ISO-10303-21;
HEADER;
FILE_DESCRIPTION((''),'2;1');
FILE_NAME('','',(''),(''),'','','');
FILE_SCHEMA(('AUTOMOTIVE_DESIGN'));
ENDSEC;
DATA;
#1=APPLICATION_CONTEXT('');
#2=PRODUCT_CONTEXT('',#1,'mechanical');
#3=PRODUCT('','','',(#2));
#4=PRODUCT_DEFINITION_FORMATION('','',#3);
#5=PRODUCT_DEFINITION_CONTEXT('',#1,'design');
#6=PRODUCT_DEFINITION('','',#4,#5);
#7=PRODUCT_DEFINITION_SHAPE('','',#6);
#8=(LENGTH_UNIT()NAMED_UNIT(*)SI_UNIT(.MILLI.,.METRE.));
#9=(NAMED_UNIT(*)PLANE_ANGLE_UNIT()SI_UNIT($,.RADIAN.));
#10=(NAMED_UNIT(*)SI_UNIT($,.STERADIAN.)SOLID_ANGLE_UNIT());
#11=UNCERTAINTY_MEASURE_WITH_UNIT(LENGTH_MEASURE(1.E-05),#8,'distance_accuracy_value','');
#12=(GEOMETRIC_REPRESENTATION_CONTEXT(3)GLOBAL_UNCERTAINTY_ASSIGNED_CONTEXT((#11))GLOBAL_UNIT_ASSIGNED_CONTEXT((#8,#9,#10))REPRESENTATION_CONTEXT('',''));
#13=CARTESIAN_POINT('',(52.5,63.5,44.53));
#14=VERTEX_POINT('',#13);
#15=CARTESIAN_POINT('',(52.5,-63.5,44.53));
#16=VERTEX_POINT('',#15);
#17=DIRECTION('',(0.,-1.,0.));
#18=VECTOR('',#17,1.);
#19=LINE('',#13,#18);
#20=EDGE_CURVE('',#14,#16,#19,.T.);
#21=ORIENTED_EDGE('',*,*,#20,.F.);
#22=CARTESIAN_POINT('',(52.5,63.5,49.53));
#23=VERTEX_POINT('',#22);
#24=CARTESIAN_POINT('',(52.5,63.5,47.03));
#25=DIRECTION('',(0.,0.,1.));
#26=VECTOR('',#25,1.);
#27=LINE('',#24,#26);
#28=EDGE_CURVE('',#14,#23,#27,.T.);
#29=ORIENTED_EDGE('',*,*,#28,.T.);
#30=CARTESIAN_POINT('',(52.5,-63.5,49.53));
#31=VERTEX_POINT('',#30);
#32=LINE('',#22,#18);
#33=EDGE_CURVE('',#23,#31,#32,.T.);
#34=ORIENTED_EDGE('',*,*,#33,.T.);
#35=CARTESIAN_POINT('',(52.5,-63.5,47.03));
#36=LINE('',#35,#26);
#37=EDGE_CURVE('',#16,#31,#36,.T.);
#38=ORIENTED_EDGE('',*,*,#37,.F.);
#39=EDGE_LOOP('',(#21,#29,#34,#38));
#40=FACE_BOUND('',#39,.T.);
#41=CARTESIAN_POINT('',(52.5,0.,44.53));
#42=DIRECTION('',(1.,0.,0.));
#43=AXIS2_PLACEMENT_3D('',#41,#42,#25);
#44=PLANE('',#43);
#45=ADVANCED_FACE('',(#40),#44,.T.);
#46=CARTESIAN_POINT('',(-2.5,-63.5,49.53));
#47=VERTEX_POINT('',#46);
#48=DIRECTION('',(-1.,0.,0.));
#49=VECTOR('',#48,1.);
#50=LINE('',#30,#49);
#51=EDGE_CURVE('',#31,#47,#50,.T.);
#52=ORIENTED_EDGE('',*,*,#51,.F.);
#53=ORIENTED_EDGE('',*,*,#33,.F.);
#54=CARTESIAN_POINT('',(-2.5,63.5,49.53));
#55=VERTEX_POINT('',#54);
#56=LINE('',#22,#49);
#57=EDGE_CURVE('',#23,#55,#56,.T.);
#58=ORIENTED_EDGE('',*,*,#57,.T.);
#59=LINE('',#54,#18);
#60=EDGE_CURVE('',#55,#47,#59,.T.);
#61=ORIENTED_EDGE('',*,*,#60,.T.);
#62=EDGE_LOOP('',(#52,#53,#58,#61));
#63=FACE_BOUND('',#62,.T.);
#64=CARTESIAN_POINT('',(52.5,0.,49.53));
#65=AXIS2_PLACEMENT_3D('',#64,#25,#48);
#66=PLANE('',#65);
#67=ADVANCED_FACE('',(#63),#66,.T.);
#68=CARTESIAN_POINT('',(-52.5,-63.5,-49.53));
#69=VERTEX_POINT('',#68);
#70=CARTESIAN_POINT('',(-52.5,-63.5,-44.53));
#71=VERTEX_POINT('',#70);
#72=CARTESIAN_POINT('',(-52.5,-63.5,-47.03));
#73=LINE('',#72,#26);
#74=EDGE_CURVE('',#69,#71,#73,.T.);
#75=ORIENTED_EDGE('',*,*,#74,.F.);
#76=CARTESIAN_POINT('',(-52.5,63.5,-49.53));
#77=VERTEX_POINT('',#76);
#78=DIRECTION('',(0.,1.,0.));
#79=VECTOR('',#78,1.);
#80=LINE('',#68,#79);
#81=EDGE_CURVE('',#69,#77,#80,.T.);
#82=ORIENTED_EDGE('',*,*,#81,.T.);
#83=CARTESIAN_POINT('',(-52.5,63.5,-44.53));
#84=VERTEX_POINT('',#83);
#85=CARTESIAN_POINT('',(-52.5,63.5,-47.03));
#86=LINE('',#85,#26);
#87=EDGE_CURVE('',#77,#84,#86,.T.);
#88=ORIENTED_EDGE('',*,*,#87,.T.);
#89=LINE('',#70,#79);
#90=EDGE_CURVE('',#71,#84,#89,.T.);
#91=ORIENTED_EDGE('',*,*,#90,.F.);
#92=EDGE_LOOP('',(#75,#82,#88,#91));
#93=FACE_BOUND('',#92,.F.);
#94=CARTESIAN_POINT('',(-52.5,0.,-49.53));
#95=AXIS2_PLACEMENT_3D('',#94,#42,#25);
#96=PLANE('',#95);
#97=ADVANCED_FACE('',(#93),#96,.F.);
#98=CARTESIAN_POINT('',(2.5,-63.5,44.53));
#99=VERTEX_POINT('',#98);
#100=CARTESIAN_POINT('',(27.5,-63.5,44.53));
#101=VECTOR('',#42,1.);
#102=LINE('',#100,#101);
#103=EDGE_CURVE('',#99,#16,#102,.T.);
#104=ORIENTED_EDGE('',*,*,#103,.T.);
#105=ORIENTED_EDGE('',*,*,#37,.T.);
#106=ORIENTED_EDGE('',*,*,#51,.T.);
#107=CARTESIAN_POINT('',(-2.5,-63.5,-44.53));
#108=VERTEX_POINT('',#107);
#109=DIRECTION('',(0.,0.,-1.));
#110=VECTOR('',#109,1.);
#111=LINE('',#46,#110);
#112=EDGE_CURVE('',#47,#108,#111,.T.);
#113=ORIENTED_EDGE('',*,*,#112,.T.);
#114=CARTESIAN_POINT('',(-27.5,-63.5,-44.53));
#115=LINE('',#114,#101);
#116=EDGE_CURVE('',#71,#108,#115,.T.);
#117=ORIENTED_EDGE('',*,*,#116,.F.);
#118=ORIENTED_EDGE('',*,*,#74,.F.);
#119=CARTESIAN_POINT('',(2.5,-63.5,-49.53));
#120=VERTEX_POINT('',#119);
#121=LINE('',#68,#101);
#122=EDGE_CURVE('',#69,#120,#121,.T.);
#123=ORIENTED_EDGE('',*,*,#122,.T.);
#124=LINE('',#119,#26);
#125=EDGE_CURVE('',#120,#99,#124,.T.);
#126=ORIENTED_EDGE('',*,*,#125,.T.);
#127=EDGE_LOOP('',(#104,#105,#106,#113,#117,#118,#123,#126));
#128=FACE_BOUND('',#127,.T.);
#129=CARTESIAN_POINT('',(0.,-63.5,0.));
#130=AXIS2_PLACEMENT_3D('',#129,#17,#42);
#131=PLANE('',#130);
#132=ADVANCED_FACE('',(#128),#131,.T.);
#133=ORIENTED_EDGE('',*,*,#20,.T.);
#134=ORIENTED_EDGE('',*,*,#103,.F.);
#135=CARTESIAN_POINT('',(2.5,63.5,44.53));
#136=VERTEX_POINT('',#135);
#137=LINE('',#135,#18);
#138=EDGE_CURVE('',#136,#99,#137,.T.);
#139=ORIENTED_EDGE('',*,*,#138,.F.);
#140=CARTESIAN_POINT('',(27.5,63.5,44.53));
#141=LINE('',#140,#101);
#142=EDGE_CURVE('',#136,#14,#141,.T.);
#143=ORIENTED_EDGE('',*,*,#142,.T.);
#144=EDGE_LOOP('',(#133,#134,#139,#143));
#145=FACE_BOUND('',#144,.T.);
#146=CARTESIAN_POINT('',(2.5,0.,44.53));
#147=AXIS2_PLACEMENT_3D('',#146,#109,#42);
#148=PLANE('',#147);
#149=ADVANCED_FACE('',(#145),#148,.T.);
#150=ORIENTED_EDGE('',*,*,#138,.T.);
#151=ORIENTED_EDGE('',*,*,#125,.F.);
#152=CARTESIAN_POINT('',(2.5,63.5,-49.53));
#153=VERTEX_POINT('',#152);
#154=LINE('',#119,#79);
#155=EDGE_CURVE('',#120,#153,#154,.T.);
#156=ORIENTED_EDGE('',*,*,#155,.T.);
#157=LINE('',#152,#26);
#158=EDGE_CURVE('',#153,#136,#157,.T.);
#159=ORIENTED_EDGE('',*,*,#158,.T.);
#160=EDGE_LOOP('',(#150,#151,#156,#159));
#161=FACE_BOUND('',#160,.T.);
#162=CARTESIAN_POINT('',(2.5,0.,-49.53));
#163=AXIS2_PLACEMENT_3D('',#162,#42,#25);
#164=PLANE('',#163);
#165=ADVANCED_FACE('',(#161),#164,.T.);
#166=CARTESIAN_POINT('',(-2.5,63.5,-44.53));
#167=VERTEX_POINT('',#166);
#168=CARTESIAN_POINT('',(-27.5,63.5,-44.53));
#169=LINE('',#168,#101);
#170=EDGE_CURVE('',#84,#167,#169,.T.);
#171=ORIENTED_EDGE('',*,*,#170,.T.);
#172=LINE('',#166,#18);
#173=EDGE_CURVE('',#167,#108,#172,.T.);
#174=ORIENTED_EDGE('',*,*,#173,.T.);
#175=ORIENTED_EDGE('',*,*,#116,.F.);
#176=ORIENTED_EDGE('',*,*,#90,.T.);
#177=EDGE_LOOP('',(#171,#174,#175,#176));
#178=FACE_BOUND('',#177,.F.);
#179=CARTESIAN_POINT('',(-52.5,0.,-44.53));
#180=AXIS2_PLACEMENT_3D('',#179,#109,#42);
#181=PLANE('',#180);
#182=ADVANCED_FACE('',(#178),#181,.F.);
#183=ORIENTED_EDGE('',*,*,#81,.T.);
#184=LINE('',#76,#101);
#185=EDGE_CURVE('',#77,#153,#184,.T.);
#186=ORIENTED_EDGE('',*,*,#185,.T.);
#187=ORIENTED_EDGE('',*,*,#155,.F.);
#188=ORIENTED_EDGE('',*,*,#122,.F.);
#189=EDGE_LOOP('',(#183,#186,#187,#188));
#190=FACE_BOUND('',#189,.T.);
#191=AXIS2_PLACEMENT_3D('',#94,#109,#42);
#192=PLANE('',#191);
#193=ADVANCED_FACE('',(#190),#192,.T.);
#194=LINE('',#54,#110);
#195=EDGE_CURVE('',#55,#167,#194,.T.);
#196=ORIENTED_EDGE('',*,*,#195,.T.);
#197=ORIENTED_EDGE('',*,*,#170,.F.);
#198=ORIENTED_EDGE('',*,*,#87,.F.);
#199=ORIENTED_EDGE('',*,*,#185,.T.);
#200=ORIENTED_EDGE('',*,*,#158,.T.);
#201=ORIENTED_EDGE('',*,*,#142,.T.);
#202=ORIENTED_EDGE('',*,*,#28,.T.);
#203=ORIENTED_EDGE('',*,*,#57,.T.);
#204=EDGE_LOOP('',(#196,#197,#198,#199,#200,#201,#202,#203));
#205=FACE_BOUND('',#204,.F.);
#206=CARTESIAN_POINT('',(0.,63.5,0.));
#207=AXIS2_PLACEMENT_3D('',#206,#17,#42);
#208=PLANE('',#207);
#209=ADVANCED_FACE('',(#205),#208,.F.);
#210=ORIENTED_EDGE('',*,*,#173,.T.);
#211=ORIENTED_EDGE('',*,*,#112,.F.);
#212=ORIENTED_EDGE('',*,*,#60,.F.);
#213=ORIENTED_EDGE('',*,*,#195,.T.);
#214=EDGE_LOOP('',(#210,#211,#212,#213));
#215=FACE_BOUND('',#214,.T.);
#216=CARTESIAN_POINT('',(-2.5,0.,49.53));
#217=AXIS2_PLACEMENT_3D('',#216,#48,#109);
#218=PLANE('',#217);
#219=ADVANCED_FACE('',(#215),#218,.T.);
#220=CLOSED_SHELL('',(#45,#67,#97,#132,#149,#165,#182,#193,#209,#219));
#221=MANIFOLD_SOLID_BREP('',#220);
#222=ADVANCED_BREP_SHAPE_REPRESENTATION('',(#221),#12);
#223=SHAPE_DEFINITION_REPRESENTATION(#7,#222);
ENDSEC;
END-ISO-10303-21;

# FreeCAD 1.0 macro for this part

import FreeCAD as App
import Part
import Sketcher
Q = App.Units.Quantity

doc = App.newDocument("Part")
body = doc.addObject("PartDesign::Body", "Body")

# Sketch on XZ plane
sketch1 = body.newObject("Sketcher::SketchObject", "Sketch")
sketch1.AttachmentSupport = (doc.getObject("XZ_Plane"), [""])
sketch1.MapMode = "FlatFace"
sketch1.addGeometry([
    Part.LineSegment(App.Vector(2.5, -49.53, 0), App.Vector(2.5, 44.53, 0)),  # 0
    Part.LineSegment(App.Vector(2.5, 44.53, 0), App.Vector(52.5, 44.53, 0)),  # 1
    Part.LineSegment(App.Vector(52.5, 44.53, 0), App.Vector(52.5, 49.53, 0)),  # 2
    Part.LineSegment(App.Vector(52.5, 49.53, 0), App.Vector(-2.5, 49.53, 0)),  # 3
    Part.LineSegment(App.Vector(-2.5, 49.53, 0), App.Vector(-2.5, -44.53, 0)),  # 4
    Part.LineSegment(App.Vector(-2.5, -44.53, 0), App.Vector(-52.5, -44.53, 0)),  # 5
    Part.LineSegment(App.Vector(-52.5, -44.53, 0), App.Vector(-52.5, -49.53, 0)),  # 6
    Part.LineSegment(App.Vector(-52.5, -49.53, 0), App.Vector(2.5, -49.53, 0)),  # 7
], False)
sketch1.addConstraint([
    Sketcher.Constraint("Coincident", 0, 2, 1, 1),
    Sketcher.Constraint("Coincident", 1, 2, 2, 1),
    Sketcher.Constraint("Coincident", 2, 2, 3, 1),
    Sketcher.Constraint("Coincident", 3, 2, 4, 1),
    Sketcher.Constraint("Coincident", 4, 2, 5, 1),
    Sketcher.Constraint("Coincident", 5, 2, 6, 1),
    Sketcher.Constraint("Coincident", 6, 2, 7, 1),
    Sketcher.Constraint("Coincident", 7, 2, 0, 1),
    Sketcher.Constraint("Vertical", 0),
    Sketcher.Constraint("Horizontal", 1),
    Sketcher.Constraint("Vertical", 2),
    Sketcher.Constraint("Horizontal", 3),
    Sketcher.Constraint("Vertical", 4),
    Sketcher.Constraint("Horizontal", 5),
    Sketcher.Constraint("Vertical", 6),
    Sketcher.Constraint("Horizontal", 7),
    Sketcher.Constraint("Symmetric", 0, 2, 4, 2, -1, 1),
    Sketcher.Constraint("Symmetric", 2, 2, 6, 2, -1, 1),
    Sketcher.Constraint("DistanceX", 1, 1, 1, 2, Q("50 mm")),
    Sketcher.Constraint("DistanceX", 3, 2, 3, 1, Q("55 mm")),
    Sketcher.Constraint("DistanceY", 2, 1, 2, 2, Q("5 mm")),
    Sketcher.Constraint("DistanceY", 0, 1, 0, 2, Q("94.06 mm")),
])
pad1 = body.newObject("PartDesign::Pad", "Pad")
pad1.Profile = sketch1
pad1.Length = 127
pad1.Midplane = True

doc.recompute()
